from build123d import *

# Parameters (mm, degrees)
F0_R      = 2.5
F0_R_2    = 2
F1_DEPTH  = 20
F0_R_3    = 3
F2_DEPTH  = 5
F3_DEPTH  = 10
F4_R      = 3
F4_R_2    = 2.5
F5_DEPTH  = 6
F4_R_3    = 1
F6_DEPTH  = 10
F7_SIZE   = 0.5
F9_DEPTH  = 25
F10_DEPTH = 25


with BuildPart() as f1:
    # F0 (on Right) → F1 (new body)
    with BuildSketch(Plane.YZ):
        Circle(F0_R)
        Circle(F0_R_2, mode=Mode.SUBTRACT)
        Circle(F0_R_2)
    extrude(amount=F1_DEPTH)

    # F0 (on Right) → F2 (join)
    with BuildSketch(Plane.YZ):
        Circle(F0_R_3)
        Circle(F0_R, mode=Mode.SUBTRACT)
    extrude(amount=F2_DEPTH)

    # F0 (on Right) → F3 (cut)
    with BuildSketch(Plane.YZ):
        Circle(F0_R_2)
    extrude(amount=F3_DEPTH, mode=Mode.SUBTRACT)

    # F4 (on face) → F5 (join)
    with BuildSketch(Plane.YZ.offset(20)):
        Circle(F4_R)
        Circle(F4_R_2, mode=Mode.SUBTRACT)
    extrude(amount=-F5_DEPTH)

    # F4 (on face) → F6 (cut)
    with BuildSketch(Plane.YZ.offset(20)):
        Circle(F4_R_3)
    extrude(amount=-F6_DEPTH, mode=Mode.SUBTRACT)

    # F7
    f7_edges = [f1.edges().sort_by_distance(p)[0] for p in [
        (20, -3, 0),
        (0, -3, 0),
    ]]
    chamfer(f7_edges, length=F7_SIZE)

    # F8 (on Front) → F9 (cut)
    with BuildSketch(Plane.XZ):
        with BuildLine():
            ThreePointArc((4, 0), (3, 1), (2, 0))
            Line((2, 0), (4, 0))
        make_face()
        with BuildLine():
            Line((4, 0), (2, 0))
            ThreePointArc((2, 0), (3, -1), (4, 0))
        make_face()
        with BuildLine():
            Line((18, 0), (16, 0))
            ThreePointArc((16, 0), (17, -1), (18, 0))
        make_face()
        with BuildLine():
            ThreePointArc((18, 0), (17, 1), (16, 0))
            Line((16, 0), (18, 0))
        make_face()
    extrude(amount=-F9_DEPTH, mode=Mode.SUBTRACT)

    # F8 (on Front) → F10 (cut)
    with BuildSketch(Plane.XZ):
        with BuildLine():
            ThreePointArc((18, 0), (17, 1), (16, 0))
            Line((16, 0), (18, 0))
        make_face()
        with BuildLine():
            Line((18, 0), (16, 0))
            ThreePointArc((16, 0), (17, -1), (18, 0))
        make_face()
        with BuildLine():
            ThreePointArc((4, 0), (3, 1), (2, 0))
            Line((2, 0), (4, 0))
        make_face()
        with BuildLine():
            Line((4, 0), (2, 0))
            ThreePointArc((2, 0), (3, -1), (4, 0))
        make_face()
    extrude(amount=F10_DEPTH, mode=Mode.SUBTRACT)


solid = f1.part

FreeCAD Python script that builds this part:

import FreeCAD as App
import Part
import Sketcher
from FreeCAD import Vector


def edges_at(feature, points):
    """Names of the edges that pass closest to the given points."""
    edges = feature.Shape.Edges
    near = lambda p: min(range(len(edges)), key=lambda i: edges[i].distToShape(Part.Vertex(*p))[0])
    return sorted({f"Edge{near(p) + 1}" for p in points})

doc = App.newDocument("Part")
params = doc.addObject("Spreadsheet::Sheet", "Params")
for row, (alias, value) in enumerate([
    ("sketch1_diameter", "5 mm"),
    ("pad1_length", "20 mm"),
    ("sketch2_diameter", "6 mm"),
    ("sketch2_diameter2", "5 mm"),
    ("pad2_length", "5 mm"),
    ("sketch3_diameter", "4 mm"),
    ("pocket1_length", "10 mm"),
    ("sketch4_diameter", "6 mm"),
    ("sketch4_diameter2", "5 mm"),
    ("pad3_length", "6 mm"),
    ("sketch5_diameter", "2 mm"),
    ("pocket2_length", "10 mm"),
    ("chamfer_size", "0.5 mm"),
    ("sketch6_diameter", "2 mm"),
    ("pocket3_length", "25 mm"),
    ("sketch7_diameter", "2 mm"),
    ("pocket4_length", "25 mm"),
], start=1):
    params.set(f"A{row}", alias)
    params.set(f"B{row}", "=" + value)
    params.setAlias(f"B{row}", alias)

body = doc.addObject("PartDesign::Body", "Body")

sketch1 = body.newObject("Sketcher::SketchObject", "Sketch")
sketch1.AttachmentSupport = (doc.getObject("YZ_Plane"), [""])
sketch1.MapMode = "FlatFace"
sketch1.addGeometry(Part.Circle(Vector(0, 0, 0), Vector(0, 0, 1), 2.5), False)
sketch1.addConstraint(Sketcher.Constraint("Coincident", 0, 3, -1, 1))
sketch1.addConstraint(Sketcher.Constraint("Diameter", 0, 5.0))
sketch1.setExpression("Constraints[1]", "Params.sketch1_diameter")
pad1 = body.newObject("PartDesign::Pad", "Pad")
pad1.Profile = sketch1
pad1.setExpression("Length", "Params.pad1_length")

sketch2 = body.newObject("Sketcher::SketchObject", "Sketch001")
sketch2.AttachmentSupport = (doc.getObject("YZ_Plane"), [""])
sketch2.MapMode = "FlatFace"
sketch2.addGeometry(Part.Circle(Vector(0, 0, 0), Vector(0, 0, 1), 3), False)
sketch2.addGeometry(Part.Circle(Vector(0, 0, 0), Vector(0, 0, 1), 2.5), False)
sketch2.addConstraint(Sketcher.Constraint("Coincident", 0, 3, -1, 1))
sketch2.addConstraint(Sketcher.Constraint("Coincident", 1, 3, -1, 1))
sketch2.addConstraint(Sketcher.Constraint("Diameter", 0, 6.0))
sketch2.addConstraint(Sketcher.Constraint("Diameter", 1, 5.0))
sketch2.setExpression("Constraints[2]", "Params.sketch2_diameter")
sketch2.setExpression("Constraints[3]", "Params.sketch2_diameter2")
pad2 = body.newObject("PartDesign::Pad", "Pad001")
pad2.Profile = sketch2
pad2.setExpression("Length", "Params.pad2_length")

sketch3 = body.newObject("Sketcher::SketchObject", "Sketch002")
sketch3.AttachmentSupport = (doc.getObject("YZ_Plane"), [""])
sketch3.MapMode = "FlatFace"
sketch3.addGeometry(Part.Circle(Vector(0, 0, 0), Vector(0, 0, 1), 2), False)
sketch3.addConstraint(Sketcher.Constraint("Coincident", 0, 3, -1, 1))
sketch3.addConstraint(Sketcher.Constraint("Diameter", 0, 4.0))
sketch3.setExpression("Constraints[1]", "Params.sketch3_diameter")
pocket1 = body.newObject("PartDesign::Pocket", "Pocket")
pocket1.Profile = sketch3
pocket1.setExpression("Length", "Params.pocket1_length")
pocket1.Reversed = True

sketch4 = body.newObject("Sketcher::SketchObject", "Sketch003")
sketch4.AttachmentSupport = (doc.getObject("YZ_Plane"), [""])
sketch4.MapMode = "FlatFace"
sketch4.AttachmentOffset = App.Placement(Vector(0, 0, 20), App.Rotation())
sketch4.addGeometry(Part.Circle(Vector(0, 0, 0), Vector(0, 0, 1), 3), False)
sketch4.addGeometry(Part.Circle(Vector(0, 0, 0), Vector(0, 0, 1), 2.5), False)
sketch4.addConstraint(Sketcher.Constraint("Coincident", 0, 3, -1, 1))
sketch4.addConstraint(Sketcher.Constraint("Coincident", 1, 3, -1, 1))
sketch4.addConstraint(Sketcher.Constraint("Diameter", 0, 6.0))
sketch4.addConstraint(Sketcher.Constraint("Diameter", 1, 5.0))
sketch4.setExpression("Constraints[2]", "Params.sketch4_diameter")
sketch4.setExpression("Constraints[3]", "Params.sketch4_diameter2")
pad3 = body.newObject("PartDesign::Pad", "Pad002")
pad3.Profile = sketch4
pad3.setExpression("Length", "Params.pad3_length")
pad3.Reversed = True

sketch5 = body.newObject("Sketcher::SketchObject", "Sketch004")
sketch5.AttachmentSupport = (doc.getObject("YZ_Plane"), [""])
sketch5.MapMode = "FlatFace"
sketch5.AttachmentOffset = App.Placement(Vector(0, 0, 20), App.Rotation())
sketch5.addGeometry(Part.Circle(Vector(0, 0, 0), Vector(0, 0, 1), 1), False)
sketch5.addConstraint(Sketcher.Constraint("Coincident", 0, 3, -1, 1))
sketch5.addConstraint(Sketcher.Constraint("Diameter", 0, 2.0))
sketch5.setExpression("Constraints[1]", "Params.sketch5_diameter")
pocket2 = body.newObject("PartDesign::Pocket", "Pocket001")
pocket2.Profile = sketch5
pocket2.setExpression("Length", "Params.pocket2_length")
doc.recompute()

chamfer = body.newObject("PartDesign::Chamfer", "Chamfer")
chamfer.Base = (pocket2, edges_at(pocket2, [(20, -3, 0), (0, -3, 0)]))
chamfer.setExpression("Size", "Params.chamfer_size")

sketch6 = body.newObject("Sketcher::SketchObject", "Sketch005")
sketch6.AttachmentSupport = (doc.getObject("XZ_Plane"), [""])
sketch6.MapMode = "FlatFace"
sketch6.addGeometry(Part.Circle(Vector(3, 0, 0), Vector(0, 0, 1), 1), False)
sketch6.addGeometry(Part.Circle(Vector(17, 0, 0), Vector(0, 0, 1), 1), False)
sketch6.addConstraint(Sketcher.Constraint("Equal", 0, 1))
sketch6.addConstraint(Sketcher.Constraint("PointOnObject", 0, 3, -1))
sketch6.addConstraint(Sketcher.Constraint("PointOnObject", 1, 3, -1))
sketch6.addConstraint(Sketcher.Constraint("Diameter", 0, 2.0))
sketch6.addConstraint(Sketcher.Constraint("DistanceX", -1, 1, 0, 3, 3.0))
sketch6.addConstraint(Sketcher.Constraint("DistanceX", -1, 1, 1, 3, 17.0))
sketch6.setExpression("Constraints[3]", "Params.sketch6_diameter")
pocket3 = body.newObject("PartDesign::Pocket", "Pocket002")
pocket3.Profile = sketch6
pocket3.setExpression("Length", "Params.pocket3_length")

sketch7 = body.newObject("Sketcher::SketchObject", "Sketch006")
sketch7.AttachmentSupport = (doc.getObject("XZ_Plane"), [""])
sketch7.MapMode = "FlatFace"
sketch7.addGeometry(Part.Circle(Vector(17, 0, 0), Vector(0, 0, 1), 1), False)
sketch7.addGeometry(Part.Circle(Vector(3, 0, 0), Vector(0, 0, 1), 1), False)
sketch7.addConstraint(Sketcher.Constraint("Equal", 0, 1))
sketch7.addConstraint(Sketcher.Constraint("PointOnObject", 0, 3, -1))
sketch7.addConstraint(Sketcher.Constraint("PointOnObject", 1, 3, -1))
sketch7.addConstraint(Sketcher.Constraint("Diameter", 0, 2.0))
sketch7.addConstraint(Sketcher.Constraint("DistanceX", -1, 1, 0, 3, 17.0))
sketch7.addConstraint(Sketcher.Constraint("DistanceX", -1, 1, 1, 3, 3.0))
sketch7.setExpression("Constraints[3]", "Params.sketch7_diameter")
pocket4 = body.newObject("PartDesign::Pocket", "Pocket003")
pocket4.Profile = sketch7
pocket4.setExpression("Length", "Params.pocket4_length")
pocket4.Reversed = True

doc.recompute()
